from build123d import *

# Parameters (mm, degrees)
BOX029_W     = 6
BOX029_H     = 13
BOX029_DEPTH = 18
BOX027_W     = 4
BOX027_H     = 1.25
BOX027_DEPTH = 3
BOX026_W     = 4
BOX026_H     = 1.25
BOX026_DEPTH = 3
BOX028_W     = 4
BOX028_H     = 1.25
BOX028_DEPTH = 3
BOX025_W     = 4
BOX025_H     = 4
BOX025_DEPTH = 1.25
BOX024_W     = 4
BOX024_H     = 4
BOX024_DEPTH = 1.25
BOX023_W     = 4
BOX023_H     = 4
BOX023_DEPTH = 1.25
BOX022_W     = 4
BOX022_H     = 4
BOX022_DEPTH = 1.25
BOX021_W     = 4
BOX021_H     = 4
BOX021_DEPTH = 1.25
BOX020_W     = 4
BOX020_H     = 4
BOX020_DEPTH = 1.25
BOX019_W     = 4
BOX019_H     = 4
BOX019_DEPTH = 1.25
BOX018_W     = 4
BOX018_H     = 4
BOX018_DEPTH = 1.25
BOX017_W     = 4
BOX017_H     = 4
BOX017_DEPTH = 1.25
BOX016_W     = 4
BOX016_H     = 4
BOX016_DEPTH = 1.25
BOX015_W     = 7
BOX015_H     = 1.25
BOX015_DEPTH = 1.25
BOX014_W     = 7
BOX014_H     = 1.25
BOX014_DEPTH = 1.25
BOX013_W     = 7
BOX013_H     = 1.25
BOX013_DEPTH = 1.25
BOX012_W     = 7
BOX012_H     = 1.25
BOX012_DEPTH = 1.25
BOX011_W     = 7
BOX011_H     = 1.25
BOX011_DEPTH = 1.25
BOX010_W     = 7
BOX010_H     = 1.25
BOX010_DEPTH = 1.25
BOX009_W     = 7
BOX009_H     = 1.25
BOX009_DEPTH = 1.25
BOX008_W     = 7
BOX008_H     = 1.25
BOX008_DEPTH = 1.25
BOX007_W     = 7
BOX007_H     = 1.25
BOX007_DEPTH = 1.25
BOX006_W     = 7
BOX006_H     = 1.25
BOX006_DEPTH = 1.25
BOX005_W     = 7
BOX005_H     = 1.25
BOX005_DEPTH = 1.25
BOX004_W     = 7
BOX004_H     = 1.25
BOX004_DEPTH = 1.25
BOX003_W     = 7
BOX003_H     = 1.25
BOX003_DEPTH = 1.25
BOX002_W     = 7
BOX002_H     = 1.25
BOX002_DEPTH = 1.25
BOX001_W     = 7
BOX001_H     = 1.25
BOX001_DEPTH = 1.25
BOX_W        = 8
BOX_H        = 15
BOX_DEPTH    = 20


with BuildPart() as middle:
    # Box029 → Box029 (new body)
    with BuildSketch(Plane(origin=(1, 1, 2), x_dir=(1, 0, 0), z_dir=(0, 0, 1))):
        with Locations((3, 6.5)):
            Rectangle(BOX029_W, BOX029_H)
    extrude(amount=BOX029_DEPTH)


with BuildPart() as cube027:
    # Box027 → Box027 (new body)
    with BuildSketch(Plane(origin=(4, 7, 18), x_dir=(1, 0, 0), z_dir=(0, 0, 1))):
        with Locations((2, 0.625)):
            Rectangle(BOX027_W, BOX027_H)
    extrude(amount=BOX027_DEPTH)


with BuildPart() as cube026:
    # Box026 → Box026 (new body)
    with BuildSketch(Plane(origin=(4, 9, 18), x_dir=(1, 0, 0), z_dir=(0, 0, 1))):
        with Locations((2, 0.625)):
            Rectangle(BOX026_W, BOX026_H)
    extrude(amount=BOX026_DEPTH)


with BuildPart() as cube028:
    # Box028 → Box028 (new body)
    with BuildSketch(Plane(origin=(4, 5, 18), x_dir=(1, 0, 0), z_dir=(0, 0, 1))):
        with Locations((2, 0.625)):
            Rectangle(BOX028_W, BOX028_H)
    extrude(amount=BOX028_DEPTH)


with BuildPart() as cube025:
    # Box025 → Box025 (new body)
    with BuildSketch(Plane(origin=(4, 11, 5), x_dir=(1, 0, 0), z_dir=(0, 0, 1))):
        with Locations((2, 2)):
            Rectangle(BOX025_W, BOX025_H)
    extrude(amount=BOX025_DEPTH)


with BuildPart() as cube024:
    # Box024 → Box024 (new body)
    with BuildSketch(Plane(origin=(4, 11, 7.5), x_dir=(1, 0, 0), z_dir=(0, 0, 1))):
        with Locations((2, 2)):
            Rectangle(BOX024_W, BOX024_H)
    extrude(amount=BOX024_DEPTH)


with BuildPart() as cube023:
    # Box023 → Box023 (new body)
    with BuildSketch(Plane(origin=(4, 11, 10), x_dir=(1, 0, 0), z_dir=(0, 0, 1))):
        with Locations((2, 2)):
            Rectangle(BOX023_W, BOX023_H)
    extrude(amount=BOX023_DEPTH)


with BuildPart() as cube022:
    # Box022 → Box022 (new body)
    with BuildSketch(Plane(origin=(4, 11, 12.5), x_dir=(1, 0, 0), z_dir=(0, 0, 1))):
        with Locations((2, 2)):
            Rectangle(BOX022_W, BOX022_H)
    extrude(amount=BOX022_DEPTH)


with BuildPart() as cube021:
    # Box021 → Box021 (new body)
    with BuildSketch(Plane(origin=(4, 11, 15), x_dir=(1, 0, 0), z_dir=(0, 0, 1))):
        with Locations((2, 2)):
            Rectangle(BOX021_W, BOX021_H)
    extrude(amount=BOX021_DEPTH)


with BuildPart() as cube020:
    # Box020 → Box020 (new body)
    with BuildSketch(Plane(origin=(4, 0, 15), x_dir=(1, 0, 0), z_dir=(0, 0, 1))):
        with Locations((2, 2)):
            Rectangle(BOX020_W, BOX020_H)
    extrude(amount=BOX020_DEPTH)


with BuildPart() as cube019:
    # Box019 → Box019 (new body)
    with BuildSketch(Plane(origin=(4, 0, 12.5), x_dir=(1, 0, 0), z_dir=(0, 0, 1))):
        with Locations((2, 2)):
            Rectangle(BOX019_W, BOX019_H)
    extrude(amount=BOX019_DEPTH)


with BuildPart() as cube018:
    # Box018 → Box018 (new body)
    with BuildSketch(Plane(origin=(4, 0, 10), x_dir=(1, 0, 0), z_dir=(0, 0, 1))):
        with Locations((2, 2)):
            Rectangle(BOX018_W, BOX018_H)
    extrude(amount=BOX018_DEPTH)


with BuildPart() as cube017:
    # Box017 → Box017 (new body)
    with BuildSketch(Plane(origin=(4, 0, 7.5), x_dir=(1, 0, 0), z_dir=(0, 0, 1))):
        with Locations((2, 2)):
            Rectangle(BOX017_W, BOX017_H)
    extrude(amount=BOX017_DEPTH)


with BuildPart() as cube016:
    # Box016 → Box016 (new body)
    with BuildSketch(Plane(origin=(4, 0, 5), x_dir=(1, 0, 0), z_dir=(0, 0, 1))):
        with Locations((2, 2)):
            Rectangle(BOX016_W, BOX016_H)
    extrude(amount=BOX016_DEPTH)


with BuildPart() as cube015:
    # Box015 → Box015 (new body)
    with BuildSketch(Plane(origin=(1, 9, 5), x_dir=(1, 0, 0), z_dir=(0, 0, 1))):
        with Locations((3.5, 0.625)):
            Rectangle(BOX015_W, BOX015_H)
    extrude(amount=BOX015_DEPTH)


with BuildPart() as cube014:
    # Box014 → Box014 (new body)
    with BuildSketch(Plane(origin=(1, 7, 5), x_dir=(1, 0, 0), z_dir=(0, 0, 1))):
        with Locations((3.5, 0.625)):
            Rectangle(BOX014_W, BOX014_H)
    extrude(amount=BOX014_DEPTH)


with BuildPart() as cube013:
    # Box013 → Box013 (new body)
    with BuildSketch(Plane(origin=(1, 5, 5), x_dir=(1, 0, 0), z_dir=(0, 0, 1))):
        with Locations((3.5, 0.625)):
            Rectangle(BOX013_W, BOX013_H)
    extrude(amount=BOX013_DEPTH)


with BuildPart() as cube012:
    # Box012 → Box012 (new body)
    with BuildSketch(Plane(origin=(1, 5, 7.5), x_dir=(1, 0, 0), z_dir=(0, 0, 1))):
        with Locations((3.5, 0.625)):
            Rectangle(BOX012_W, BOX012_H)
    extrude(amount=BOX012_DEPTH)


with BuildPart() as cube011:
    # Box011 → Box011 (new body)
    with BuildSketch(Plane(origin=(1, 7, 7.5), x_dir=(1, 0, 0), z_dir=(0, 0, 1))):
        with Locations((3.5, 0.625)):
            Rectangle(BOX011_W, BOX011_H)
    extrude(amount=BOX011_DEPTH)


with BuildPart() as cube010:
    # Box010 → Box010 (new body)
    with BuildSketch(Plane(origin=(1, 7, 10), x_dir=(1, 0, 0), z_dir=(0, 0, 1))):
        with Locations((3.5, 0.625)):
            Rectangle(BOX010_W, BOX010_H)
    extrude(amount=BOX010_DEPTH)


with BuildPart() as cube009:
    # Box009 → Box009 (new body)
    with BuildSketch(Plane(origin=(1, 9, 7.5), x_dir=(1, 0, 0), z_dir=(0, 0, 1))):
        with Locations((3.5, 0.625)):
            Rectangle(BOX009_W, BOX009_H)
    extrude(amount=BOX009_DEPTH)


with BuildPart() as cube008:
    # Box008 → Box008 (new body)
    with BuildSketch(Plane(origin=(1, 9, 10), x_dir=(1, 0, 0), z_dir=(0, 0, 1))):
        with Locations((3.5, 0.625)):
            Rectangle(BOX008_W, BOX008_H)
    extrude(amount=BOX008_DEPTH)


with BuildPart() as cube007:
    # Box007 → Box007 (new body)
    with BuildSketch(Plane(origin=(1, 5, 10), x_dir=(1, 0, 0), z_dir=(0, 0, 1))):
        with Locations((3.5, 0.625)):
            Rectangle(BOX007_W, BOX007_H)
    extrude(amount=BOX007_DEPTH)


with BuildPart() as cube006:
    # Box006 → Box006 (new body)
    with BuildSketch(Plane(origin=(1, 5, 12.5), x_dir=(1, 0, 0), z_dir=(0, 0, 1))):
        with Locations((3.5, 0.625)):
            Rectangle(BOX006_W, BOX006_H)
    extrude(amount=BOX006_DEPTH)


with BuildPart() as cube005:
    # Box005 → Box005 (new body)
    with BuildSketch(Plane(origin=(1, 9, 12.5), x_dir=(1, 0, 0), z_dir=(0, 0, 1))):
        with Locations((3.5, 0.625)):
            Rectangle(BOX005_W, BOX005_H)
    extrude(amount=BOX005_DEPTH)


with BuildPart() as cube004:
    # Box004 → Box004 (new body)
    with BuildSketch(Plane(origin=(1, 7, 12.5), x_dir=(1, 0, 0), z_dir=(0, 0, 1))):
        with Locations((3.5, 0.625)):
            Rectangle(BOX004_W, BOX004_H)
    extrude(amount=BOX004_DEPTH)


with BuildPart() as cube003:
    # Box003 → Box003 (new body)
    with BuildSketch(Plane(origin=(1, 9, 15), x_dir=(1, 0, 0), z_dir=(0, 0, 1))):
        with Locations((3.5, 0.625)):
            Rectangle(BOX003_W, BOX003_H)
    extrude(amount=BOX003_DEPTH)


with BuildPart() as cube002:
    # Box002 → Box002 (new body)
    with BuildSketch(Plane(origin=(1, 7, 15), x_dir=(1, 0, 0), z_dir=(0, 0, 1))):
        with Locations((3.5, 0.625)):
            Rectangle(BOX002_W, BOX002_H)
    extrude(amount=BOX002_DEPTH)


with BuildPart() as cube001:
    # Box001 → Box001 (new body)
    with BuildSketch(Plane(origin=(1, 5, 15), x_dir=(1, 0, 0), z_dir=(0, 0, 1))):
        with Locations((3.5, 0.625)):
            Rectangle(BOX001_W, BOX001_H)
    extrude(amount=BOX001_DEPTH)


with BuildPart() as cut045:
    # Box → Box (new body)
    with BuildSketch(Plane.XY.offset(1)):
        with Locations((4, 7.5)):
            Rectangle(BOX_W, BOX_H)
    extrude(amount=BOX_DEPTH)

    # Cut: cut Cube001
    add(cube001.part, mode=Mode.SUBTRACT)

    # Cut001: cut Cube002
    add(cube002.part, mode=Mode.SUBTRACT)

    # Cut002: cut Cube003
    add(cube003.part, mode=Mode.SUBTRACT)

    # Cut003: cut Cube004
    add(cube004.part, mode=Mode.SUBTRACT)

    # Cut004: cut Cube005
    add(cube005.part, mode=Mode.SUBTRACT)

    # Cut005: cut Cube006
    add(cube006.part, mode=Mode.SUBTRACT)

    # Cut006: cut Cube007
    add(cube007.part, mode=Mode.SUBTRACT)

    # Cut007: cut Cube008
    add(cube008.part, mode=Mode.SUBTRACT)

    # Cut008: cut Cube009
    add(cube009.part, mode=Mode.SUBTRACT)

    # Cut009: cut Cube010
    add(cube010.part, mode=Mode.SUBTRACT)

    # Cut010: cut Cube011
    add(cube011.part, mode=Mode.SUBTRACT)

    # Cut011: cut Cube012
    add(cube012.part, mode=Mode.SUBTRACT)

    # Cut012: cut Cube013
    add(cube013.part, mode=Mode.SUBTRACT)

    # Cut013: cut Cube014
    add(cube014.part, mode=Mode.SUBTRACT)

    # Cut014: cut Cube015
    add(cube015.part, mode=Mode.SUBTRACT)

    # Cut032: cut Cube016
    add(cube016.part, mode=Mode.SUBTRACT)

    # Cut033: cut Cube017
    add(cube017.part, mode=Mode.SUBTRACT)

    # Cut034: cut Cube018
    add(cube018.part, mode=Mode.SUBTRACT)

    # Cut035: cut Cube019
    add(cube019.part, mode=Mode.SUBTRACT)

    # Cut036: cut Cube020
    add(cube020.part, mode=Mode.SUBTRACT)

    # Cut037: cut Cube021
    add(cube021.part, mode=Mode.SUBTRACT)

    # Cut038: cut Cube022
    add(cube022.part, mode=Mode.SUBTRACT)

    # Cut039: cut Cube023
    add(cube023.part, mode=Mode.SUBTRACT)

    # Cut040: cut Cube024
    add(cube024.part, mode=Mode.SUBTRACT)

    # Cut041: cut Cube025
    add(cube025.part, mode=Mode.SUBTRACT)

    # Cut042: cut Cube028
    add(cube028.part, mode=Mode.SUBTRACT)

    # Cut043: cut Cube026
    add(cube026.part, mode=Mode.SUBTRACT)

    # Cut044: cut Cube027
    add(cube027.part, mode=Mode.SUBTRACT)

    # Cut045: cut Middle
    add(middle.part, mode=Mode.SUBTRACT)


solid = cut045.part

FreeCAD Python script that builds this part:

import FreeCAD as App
import Part
import Sketcher
from FreeCAD import Vector
Q = App.Units.Quantity


def add_polygon(sketch, points):
    """Adds a closed chain of lines whose ends are joined by coincident constraints."""
    first, n = sketch.GeometryCount, len(points)
    for a, b in zip(points, points[1:] + points[:1]):
        sketch.addGeometry(Part.LineSegment(App.Vector(*a, 0), App.Vector(*b, 0)), False)
    for i in range(n):
        sketch.addConstraint(Sketcher.Constraint("Coincident", first + i, 2, first + (i + 1) % n, 1))

doc = App.newDocument("Part")
body = doc.addObject("PartDesign::Body", "Body")

# Sketch on XY plane
sketch1 = body.newObject("Sketcher::SketchObject", "Sketch")
sketch1.AttachmentSupport = (doc.getObject("XY_Plane"), [""])
sketch1.MapMode = "FlatFace"
sketch1.AttachmentOffset = App.Placement(Vector(0, 0, 2), App.Rotation())
add_polygon(sketch1, [(1, 14), (1, 1), (7, 1), (7, 14)])  # lines 0-3
sketch1.addConstraint([
    Sketcher.Constraint("Vertical", 0),
    Sketcher.Constraint("Horizontal", 1),
    Sketcher.Constraint("Vertical", 2),
    Sketcher.Constraint("Horizontal", 3),
    Sketcher.Constraint("DistanceX", 1, 1, 1, 2, Q("6 mm")),
    Sketcher.Constraint("DistanceY", 0, 2, 0, 1, Q("13 mm")),
    Sketcher.Constraint("DistanceX", -1, 1, 0, 2, Q("1 mm")),
    Sketcher.Constraint("DistanceY", -1, 1, 0, 2, Q("1 mm")),
])
pad1 = body.newObject("PartDesign::Pad", "Pad")
pad1.Profile = sketch1
pad1.Length = 18
body2 = doc.addObject("PartDesign::Body", "Body001")

# Sketch on XY plane
sketch2 = body2.newObject("Sketcher::SketchObject", "Sketch001")
sketch2.AttachmentSupport = (doc.getObject("XY_Plane001"), [""])
sketch2.MapMode = "FlatFace"
sketch2.AttachmentOffset = App.Placement(Vector(0, 0, 18), App.Rotation())
add_polygon(sketch2, [(4, 8.2), (4, 7), (8, 7), (8, 8.2)])  # lines 0-3
sketch2.addConstraint([
    Sketcher.Constraint("Vertical", 0),
    Sketcher.Constraint("Horizontal", 1),
    Sketcher.Constraint("Vertical", 2),
    Sketcher.Constraint("Horizontal", 3),
    Sketcher.Constraint("DistanceX", 1, 1, 1, 2, Q("4 mm")),
    Sketcher.Constraint("DistanceX", -1, 1, 0, 2, Q("4 mm")),
    Sketcher.Constraint("DistanceY", -1, 1, 0, 2, Q("7 mm")),
    Sketcher.Constraint("DistanceY", 0, 2, 0, 1, Q("1.25 mm")),
])
pad2 = body2.newObject("PartDesign::Pad", "Pad001")
pad2.Profile = sketch2
pad2.Length = 3
body3 = doc.addObject("PartDesign::Body", "Body002")

# Sketch on XY plane
sketch3 = body3.newObject("Sketcher::SketchObject", "Sketch002")
sketch3.AttachmentSupport = (doc.getObject("XY_Plane002"), [""])
sketch3.MapMode = "FlatFace"
sketch3.AttachmentOffset = App.Placement(Vector(0, 0, 18), App.Rotation())
add_polygon(sketch3, [(4, 10.2), (4, 9), (8, 9), (8, 10.2)])  # lines 0-3
sketch3.addConstraint([
    Sketcher.Constraint("Vertical", 0),
    Sketcher.Constraint("Horizontal", 1),
    Sketcher.Constraint("Vertical", 2),
    Sketcher.Constraint("Horizontal", 3),
    Sketcher.Constraint("DistanceX", 1, 1, 1, 2, Q("4 mm")),
    Sketcher.Constraint("DistanceX", -1, 1, 0, 2, Q("4 mm")),
    Sketcher.Constraint("DistanceY", -1, 1, 0, 2, Q("9 mm")),
    Sketcher.Constraint("DistanceY", 0, 2, 0, 1, Q("1.25 mm")),
])
pad3 = body3.newObject("PartDesign::Pad", "Pad002")
pad3.Profile = sketch3
pad3.Length = 3
body4 = doc.addObject("PartDesign::Body", "Body003")

# Sketch on XY plane
sketch4 = body4.newObject("Sketcher::SketchObject", "Sketch003")
sketch4.AttachmentSupport = (doc.getObject("XY_Plane003"), [""])
sketch4.MapMode = "FlatFace"
sketch4.AttachmentOffset = App.Placement(Vector(0, 0, 18), App.Rotation())
add_polygon(sketch4, [(4, 6.2), (4, 5), (8, 5), (8, 6.2)])  # lines 0-3
sketch4.addConstraint([
    Sketcher.Constraint("Vertical", 0),
    Sketcher.Constraint("Horizontal", 1),
    Sketcher.Constraint("Vertical", 2),
    Sketcher.Constraint("Horizontal", 3),
    Sketcher.Constraint("DistanceX", 1, 1, 1, 2, Q("4 mm")),
    Sketcher.Constraint("DistanceX", -1, 1, 0, 2, Q("4 mm")),
    Sketcher.Constraint("DistanceY", -1, 1, 0, 2, Q("5 mm")),
    Sketcher.Constraint("DistanceY", 0, 2, 0, 1, Q("1.25 mm")),
])
pad4 = body4.newObject("PartDesign::Pad", "Pad003")
pad4.Profile = sketch4
pad4.Length = 3
body5 = doc.addObject("PartDesign::Body", "Body004")

# Sketch on XY plane
sketch5 = body5.newObject("Sketcher::SketchObject", "Sketch004")
sketch5.AttachmentSupport = (doc.getObject("XY_Plane004"), [""])
sketch5.MapMode = "FlatFace"
sketch5.AttachmentOffset = App.Placement(Vector(0, 0, 5), App.Rotation())
add_polygon(sketch5, [(4, 15), (4, 11), (8, 11), (8, 15)])  # lines 0-3
sketch5.addConstraint([
    Sketcher.Constraint("Vertical", 0),
    Sketcher.Constraint("Horizontal", 1),
    Sketcher.Constraint("Vertical", 2),
    Sketcher.Constraint("Horizontal", 3),
    Sketcher.Constraint("Equal", 3, 0),
    Sketcher.Constraint("DistanceX", 1, 1, 1, 2, Q("4 mm")),
    Sketcher.Constraint("DistanceX", -1, 1, 0, 2, Q("4 mm")),
    Sketcher.Constraint("DistanceY", -1, 1, 0, 2, Q("11 mm")),
])
pad5 = body5.newObject("PartDesign::Pad", "Pad004")
pad5.Profile = sketch5
pad5.Length = 1.25
body6 = doc.addObject("PartDesign::Body", "Body005")

# Sketch on XY plane
sketch6 = body6.newObject("Sketcher::SketchObject", "Sketch005")
sketch6.AttachmentSupport = (doc.getObject("XY_Plane005"), [""])
sketch6.MapMode = "FlatFace"
sketch6.AttachmentOffset = App.Placement(Vector(0, 0, 7.5), App.Rotation())
add_polygon(sketch6, [(4, 15), (4, 11), (8, 11), (8, 15)])  # lines 0-3
sketch6.addConstraint([
    Sketcher.Constraint("Vertical", 0),
    Sketcher.Constraint("Horizontal", 1),
    Sketcher.Constraint("Vertical", 2),
    Sketcher.Constraint("Horizontal", 3),
    Sketcher.Constraint("Equal", 3, 0),
    Sketcher.Constraint("DistanceX", 1, 1, 1, 2, Q("4 mm")),
    Sketcher.Constraint("DistanceX", -1, 1, 0, 2, Q("4 mm")),
    Sketcher.Constraint("DistanceY", -1, 1, 0, 2, Q("11 mm")),
])
pad6 = body6.newObject("PartDesign::Pad", "Pad005")
pad6.Profile = sketch6
pad6.Length = 1.25
body7 = doc.addObject("PartDesign::Body", "Body006")

# Sketch on XY plane
sketch7 = body7.newObject("Sketcher::SketchObject", "Sketch006")
sketch7.AttachmentSupport = (doc.getObject("XY_Plane006"), [""])
sketch7.MapMode = "FlatFace"
sketch7.AttachmentOffset = App.Placement(Vector(0, 0, 10), App.Rotation())
add_polygon(sketch7, [(4, 15), (4, 11), (8, 11), (8, 15)])  # lines 0-3
sketch7.addConstraint([
    Sketcher.Constraint("Vertical", 0),
    Sketcher.Constraint("Horizontal", 1),
    Sketcher.Constraint("Vertical", 2),
    Sketcher.Constraint("Horizontal", 3),
    Sketcher.Constraint("Equal", 3, 0),
    Sketcher.Constraint("DistanceX", 1, 1, 1, 2, Q("4 mm")),
    Sketcher.Constraint("DistanceX", -1, 1, 0, 2, Q("4 mm")),
    Sketcher.Constraint("DistanceY", -1, 1, 0, 2, Q("11 mm")),
])
pad7 = body7.newObject("PartDesign::Pad", "Pad006")
pad7.Profile = sketch7
pad7.Length = 1.25
body8 = doc.addObject("PartDesign::Body", "Body007")

# Sketch on XY plane
sketch8 = body8.newObject("Sketcher::SketchObject", "Sketch007")
sketch8.AttachmentSupport = (doc.getObject("XY_Plane007"), [""])
sketch8.MapMode = "FlatFace"
sketch8.AttachmentOffset = App.Placement(Vector(0, 0, 12.5), App.Rotation())
add_polygon(sketch8, [(4, 15), (4, 11), (8, 11), (8, 15)])  # lines 0-3
sketch8.addConstraint([
    Sketcher.Constraint("Vertical", 0),
    Sketcher.Constraint("Horizontal", 1),
    Sketcher.Constraint("Vertical", 2),
    Sketcher.Constraint("Horizontal", 3),
    Sketcher.Constraint("Equal", 3, 0),
    Sketcher.Constraint("DistanceX", 1, 1, 1, 2, Q("4 mm")),
    Sketcher.Constraint("DistanceX", -1, 1, 0, 2, Q("4 mm")),
    Sketcher.Constraint("DistanceY", -1, 1, 0, 2, Q("11 mm")),
])
pad8 = body8.newObject("PartDesign::Pad", "Pad007")
pad8.Profile = sketch8
pad8.Length = 1.25
body9 = doc.addObject("PartDesign::Body", "Body008")

# Sketch on XY plane
sketch9 = body9.newObject("Sketcher::SketchObject", "Sketch008")
sketch9.AttachmentSupport = (doc.getObject("XY_Plane008"), [""])
sketch9.MapMode = "FlatFace"
sketch9.AttachmentOffset = App.Placement(Vector(0, 0, 15), App.Rotation())
add_polygon(sketch9, [(4, 15), (4, 11), (8, 11), (8, 15)])  # lines 0-3
sketch9.addConstraint([
    Sketcher.Constraint("Vertical", 0),
    Sketcher.Constraint("Horizontal", 1),
    Sketcher.Constraint("Vertical", 2),
    Sketcher.Constraint("Horizontal", 3),
    Sketcher.Constraint("Equal", 3, 0),
    Sketcher.Constraint("DistanceX", 1, 1, 1, 2, Q("4 mm")),
    Sketcher.Constraint("DistanceX", -1, 1, 0, 2, Q("4 mm")),
    Sketcher.Constraint("DistanceY", -1, 1, 0, 2, Q("11 mm")),
])
pad9 = body9.newObject("PartDesign::Pad", "Pad008")
pad9.Profile = sketch9
pad9.Length = 1.25
body10 = doc.addObject("PartDesign::Body", "Body009")

# Sketch on XY plane
sketch10 = body10.newObject("Sketcher::SketchObject", "Sketch009")
sketch10.AttachmentSupport = (doc.getObject("XY_Plane009"), [""])
sketch10.MapMode = "FlatFace"
sketch10.AttachmentOffset = App.Placement(Vector(0, 0, 15), App.Rotation())
add_polygon(sketch10, [(4, 4), (4, 0), (8, 0), (8, 4)])  # lines 0-3
sketch10.addConstraint([
    Sketcher.Constraint("Vertical", 0),
    Sketcher.Constraint("Horizontal", 1),
    Sketcher.Constraint("Vertical", 2),
    Sketcher.Constraint("Horizontal", 3),
    Sketcher.Constraint("PointOnObject", 0, 2, -1),
    Sketcher.Constraint("Equal", 3, 0),
    Sketcher.Constraint("DistanceX", 1, 1, 1, 2, Q("4 mm")),
    Sketcher.Constraint("DistanceX", -1, 1, 0, 2, Q("4 mm")),
])
pad10 = body10.newObject("PartDesign::Pad", "Pad009")
pad10.Profile = sketch10
pad10.Length = 1.25
body11 = doc.addObject("PartDesign::Body", "Body010")

# Sketch on XY plane
sketch11 = body11.newObject("Sketcher::SketchObject", "Sketch010")
sketch11.AttachmentSupport = (doc.getObject("XY_Plane010"), [""])
sketch11.MapMode = "FlatFace"
sketch11.AttachmentOffset = App.Placement(Vector(0, 0, 12.5), App.Rotation())
add_polygon(sketch11, [(4, 4), (4, 0), (8, 0), (8, 4)])  # lines 0-3
sketch11.addConstraint([
    Sketcher.Constraint("Vertical", 0),
    Sketcher.Constraint("Horizontal", 1),
    Sketcher.Constraint("Vertical", 2),
    Sketcher.Constraint("Horizontal", 3),
    Sketcher.Constraint("PointOnObject", 0, 2, -1),
    Sketcher.Constraint("Equal", 3, 0),
    Sketcher.Constraint("DistanceX", 1, 1, 1, 2, Q("4 mm")),
    Sketcher.Constraint("DistanceX", -1, 1, 0, 2, Q("4 mm")),
])
pad11 = body11.newObject("PartDesign::Pad", "Pad010")
pad11.Profile = sketch11
pad11.Length = 1.25
body12 = doc.addObject("PartDesign::Body", "Body011")

# Sketch on XY plane
sketch12 = body12.newObject("Sketcher::SketchObject", "Sketch011")
sketch12.AttachmentSupport = (doc.getObject("XY_Plane011"), [""])
sketch12.MapMode = "FlatFace"
sketch12.AttachmentOffset = App.Placement(Vector(0, 0, 10), App.Rotation())
add_polygon(sketch12, [(4, 4), (4, 0), (8, 0), (8, 4)])  # lines 0-3
sketch12.addConstraint([
    Sketcher.Constraint("Vertical", 0),
    Sketcher.Constraint("Horizontal", 1),
    Sketcher.Constraint("Vertical", 2),
    Sketcher.Constraint("Horizontal", 3),
    Sketcher.Constraint("PointOnObject", 0, 2, -1),
    Sketcher.Constraint("Equal", 3, 0),
    Sketcher.Constraint("DistanceX", 1, 1, 1, 2, Q("4 mm")),
    Sketcher.Constraint("DistanceX", -1, 1, 0, 2, Q("4 mm")),
])
pad12 = body12.newObject("PartDesign::Pad", "Pad011")
pad12.Profile = sketch12
pad12.Length = 1.25
body13 = doc.addObject("PartDesign::Body", "Body012")

# Sketch on XY plane
sketch13 = body13.newObject("Sketcher::SketchObject", "Sketch012")
sketch13.AttachmentSupport = (doc.getObject("XY_Plane012"), [""])
sketch13.MapMode = "FlatFace"
sketch13.AttachmentOffset = App.Placement(Vector(0, 0, 7.5), App.Rotation())
add_polygon(sketch13, [(4, 4), (4, 0), (8, 0), (8, 4)])  # lines 0-3
sketch13.addConstraint([
    Sketcher.Constraint("Vertical", 0),
    Sketcher.Constraint("Horizontal", 1),
    Sketcher.Constraint("Vertical", 2),
    Sketcher.Constraint("Horizontal", 3),
    Sketcher.Constraint("PointOnObject", 0, 2, -1),
    Sketcher.Constraint("Equal", 3, 0),
    Sketcher.Constraint("DistanceX", 1, 1, 1, 2, Q("4 mm")),
    Sketcher.Constraint("DistanceX", -1, 1, 0, 2, Q("4 mm")),
])
pad13 = body13.newObject("PartDesign::Pad", "Pad012")
pad13.Profile = sketch13
pad13.Length = 1.25
body14 = doc.addObject("PartDesign::Body", "Body013")

# Sketch on XY plane
sketch14 = body14.newObject("Sketcher::SketchObject", "Sketch013")
sketch14.AttachmentSupport = (doc.getObject("XY_Plane013"), [""])
sketch14.MapMode = "FlatFace"
sketch14.AttachmentOffset = App.Placement(Vector(0, 0, 5), App.Rotation())
add_polygon(sketch14, [(4, 4), (4, 0), (8, 0), (8, 4)])  # lines 0-3
sketch14.addConstraint([
    Sketcher.Constraint("Vertical", 0),
    Sketcher.Constraint("Horizontal", 1),
    Sketcher.Constraint("Vertical", 2),
    Sketcher.Constraint("Horizontal", 3),
    Sketcher.Constraint("PointOnObject", 0, 2, -1),
    Sketcher.Constraint("Equal", 3, 0),
    Sketcher.Constraint("DistanceX", 1, 1, 1, 2, Q("4 mm")),
    Sketcher.Constraint("DistanceX", -1, 1, 0, 2, Q("4 mm")),
])
pad14 = body14.newObject("PartDesign::Pad", "Pad013")
pad14.Profile = sketch14
pad14.Length = 1.25
body15 = doc.addObject("PartDesign::Body", "Body014")

# Sketch on XY plane
sketch15 = body15.newObject("Sketcher::SketchObject", "Sketch014")
sketch15.AttachmentSupport = (doc.getObject("XY_Plane014"), [""])
sketch15.MapMode = "FlatFace"
sketch15.AttachmentOffset = App.Placement(Vector(0, 0, 5), App.Rotation())
add_polygon(sketch15, [(1, 10.2), (1, 9), (8, 9), (8, 10.2)])  # lines 0-3
sketch15.addConstraint([
    Sketcher.Constraint("Vertical", 0),
    Sketcher.Constraint("Horizontal", 1),
    Sketcher.Constraint("Vertical", 2),
    Sketcher.Constraint("Horizontal", 3),
    Sketcher.Constraint("DistanceX", 1, 1, 1, 2, Q("7 mm")),
    Sketcher.Constraint("DistanceX", -1, 1, 0, 2, Q("1 mm")),
    Sketcher.Constraint("DistanceY", -1, 1, 0, 2, Q("9 mm")),
    Sketcher.Constraint("DistanceY", 0, 2, 0, 1, Q("1.25 mm")),
])
pad15 = body15.newObject("PartDesign::Pad", "Pad014")
pad15.Profile = sketch15
pad15.Length = 1.25
body16 = doc.addObject("PartDesign::Body", "Body015")

# Sketch on XY plane
sketch16 = body16.newObject("Sketcher::SketchObject", "Sketch015")
sketch16.AttachmentSupport = (doc.getObject("XY_Plane015"), [""])
sketch16.MapMode = "FlatFace"
sketch16.AttachmentOffset = App.Placement(Vector(0, 0, 5), App.Rotation())
add_polygon(sketch16, [(1, 8.2), (1, 7), (8, 7), (8, 8.2)])  # lines 0-3
sketch16.addConstraint([
    Sketcher.Constraint("Vertical", 0),
    Sketcher.Constraint("Horizontal", 1),
    Sketcher.Constraint("Vertical", 2),
    Sketcher.Constraint("Horizontal", 3),
    Sketcher.Constraint("DistanceX", 1, 1, 1, 2, Q("7 mm")),
    Sketcher.Constraint("DistanceX", -1, 1, 0, 2, Q("1 mm")),
    Sketcher.Constraint("DistanceY", -1, 1, 0, 2, Q("7 mm")),
    Sketcher.Constraint("DistanceY", 0, 2, 0, 1, Q("1.25 mm")),
])
pad16 = body16.newObject("PartDesign::Pad", "Pad015")
pad16.Profile = sketch16
pad16.Length = 1.25
body17 = doc.addObject("PartDesign::Body", "Body016")

# Sketch on XY plane
sketch17 = body17.newObject("Sketcher::SketchObject", "Sketch016")
sketch17.AttachmentSupport = (doc.getObject("XY_Plane016"), [""])
sketch17.MapMode = "FlatFace"
sketch17.AttachmentOffset = App.Placement(Vector(0, 0, 5), App.Rotation())
add_polygon(sketch17, [(1, 6.2), (1, 5), (8, 5), (8, 6.2)])  # lines 0-3
sketch17.addConstraint([
    Sketcher.Constraint("Vertical", 0),
    Sketcher.Constraint("Horizontal", 1),
    Sketcher.Constraint("Vertical", 2),
    Sketcher.Constraint("Horizontal", 3),
    Sketcher.Constraint("DistanceX", 1, 1, 1, 2, Q("7 mm")),
    Sketcher.Constraint("DistanceX", -1, 1, 0, 2, Q("1 mm")),
    Sketcher.Constraint("DistanceY", -1, 1, 0, 2, Q("5 mm")),
    Sketcher.Constraint("DistanceY", 0, 2, 0, 1, Q("1.25 mm")),
])
pad17 = body17.newObject("PartDesign::Pad", "Pad016")
pad17.Profile = sketch17
pad17.Length = 1.25
body18 = doc.addObject("PartDesign::Body", "Body017")

# Sketch on XY plane
sketch18 = body18.newObject("Sketcher::SketchObject", "Sketch017")
sketch18.AttachmentSupport = (doc.getObject("XY_Plane017"), [""])
sketch18.MapMode = "FlatFace"
sketch18.AttachmentOffset = App.Placement(Vector(0, 0, 7.5), App.Rotation())
add_polygon(sketch18, [(1, 6.2), (1, 5), (8, 5), (8, 6.2)])  # lines 0-3
sketch18.addConstraint([
    Sketcher.Constraint("Vertical", 0),
    Sketcher.Constraint("Horizontal", 1),
    Sketcher.Constraint("Vertical", 2),
    Sketcher.Constraint("Horizontal", 3),
    Sketcher.Constraint("DistanceX", 1, 1, 1, 2, Q("7 mm")),
    Sketcher.Constraint("DistanceX", -1, 1, 0, 2, Q("1 mm")),
    Sketcher.Constraint("DistanceY", -1, 1, 0, 2, Q("5 mm")),
    Sketcher.Constraint("DistanceY", 0, 2, 0, 1, Q("1.25 mm")),
])
pad18 = body18.newObject("PartDesign::Pad", "Pad017")
pad18.Profile = sketch18
pad18.Length = 1.25
body19 = doc.addObject("PartDesign::Body", "Body018")

# Sketch on XY plane
sketch19 = body19.newObject("Sketcher::SketchObject", "Sketch018")
sketch19.AttachmentSupport = (doc.getObject("XY_Plane018"), [""])
sketch19.MapMode = "FlatFace"
sketch19.AttachmentOffset = App.Placement(Vector(0, 0, 7.5), App.Rotation())
add_polygon(sketch19, [(1, 8.2), (1, 7), (8, 7), (8, 8.2)])  # lines 0-3
sketch19.addConstraint([
    Sketcher.Constraint("Vertical", 0),
    Sketcher.Constraint("Horizontal", 1),
    Sketcher.Constraint("Vertical", 2),
    Sketcher.Constraint("Horizontal", 3),
    Sketcher.Constraint("DistanceX", 1, 1, 1, 2, Q("7 mm")),
    Sketcher.Constraint("DistanceX", -1, 1, 0, 2, Q("1 mm")),
    Sketcher.Constraint("DistanceY", -1, 1, 0, 2, Q("7 mm")),
    Sketcher.Constraint("DistanceY", 0, 2, 0, 1, Q("1.25 mm")),
])
pad19 = body19.newObject("PartDesign::Pad", "Pad018")
pad19.Profile = sketch19
pad19.Length = 1.25
body20 = doc.addObject("PartDesign::Body", "Body019")

# Sketch on XY plane
sketch20 = body20.newObject("Sketcher::SketchObject", "Sketch019")
sketch20.AttachmentSupport = (doc.getObject("XY_Plane019"), [""])
sketch20.MapMode = "FlatFace"
sketch20.AttachmentOffset = App.Placement(Vector(0, 0, 10), App.Rotation())
add_polygon(sketch20, [(1, 8.2), (1, 7), (8, 7), (8, 8.2)])  # lines 0-3
sketch20.addConstraint([
    Sketcher.Constraint("Vertical", 0),
    Sketcher.Constraint("Horizontal", 1),
    Sketcher.Constraint("Vertical", 2),
    Sketcher.Constraint("Horizontal", 3),
    Sketcher.Constraint("DistanceX", 1, 1, 1, 2, Q("7 mm")),
    Sketcher.Constraint("DistanceX", -1, 1, 0, 2, Q("1 mm")),
    Sketcher.Constraint("DistanceY", -1, 1, 0, 2, Q("7 mm")),
    Sketcher.Constraint("DistanceY", 0, 2, 0, 1, Q("1.25 mm")),
])
pad20 = body20.newObject("PartDesign::Pad", "Pad019")
pad20.Profile = sketch20
pad20.Length = 1.25
body21 = doc.addObject("PartDesign::Body", "Body020")

# Sketch on XY plane
sketch21 = body21.newObject("Sketcher::SketchObject", "Sketch020")
sketch21.AttachmentSupport = (doc.getObject("XY_Plane020"), [""])
sketch21.MapMode = "FlatFace"
sketch21.AttachmentOffset = App.Placement(Vector(0, 0, 7.5), App.Rotation())
add_polygon(sketch21, [(1, 10.2), (1, 9), (8, 9), (8, 10.2)])  # lines 0-3
sketch21.addConstraint([
    Sketcher.Constraint("Vertical", 0),
    Sketcher.Constraint("Horizontal", 1),
    Sketcher.Constraint("Vertical", 2),
    Sketcher.Constraint("Horizontal", 3),
    Sketcher.Constraint("DistanceX", 1, 1, 1, 2, Q("7 mm")),
    Sketcher.Constraint("DistanceX", -1, 1, 0, 2, Q("1 mm")),
    Sketcher.Constraint("DistanceY", -1, 1, 0, 2, Q("9 mm")),
    Sketcher.Constraint("DistanceY", 0, 2, 0, 1, Q("1.25 mm")),
])
pad21 = body21.newObject("PartDesign::Pad", "Pad020")
pad21.Profile = sketch21
pad21.Length = 1.25
body22 = doc.addObject("PartDesign::Body", "Body021")

# Sketch on XY plane
sketch22 = body22.newObject("Sketcher::SketchObject", "Sketch021")
sketch22.AttachmentSupport = (doc.getObject("XY_Plane021"), [""])
sketch22.MapMode = "FlatFace"
sketch22.AttachmentOffset = App.Placement(Vector(0, 0, 10), App.Rotation())
add_polygon(sketch22, [(1, 10.2), (1, 9), (8, 9), (8, 10.2)])  # lines 0-3
sketch22.addConstraint([
    Sketcher.Constraint("Vertical", 0),
    Sketcher.Constraint("Horizontal", 1),
    Sketcher.Constraint("Vertical", 2),
    Sketcher.Constraint("Horizontal", 3),
    Sketcher.Constraint("DistanceX", 1, 1, 1, 2, Q("7 mm")),
    Sketcher.Constraint("DistanceX", -1, 1, 0, 2, Q("1 mm")),
    Sketcher.Constraint("DistanceY", -1, 1, 0, 2, Q("9 mm")),
    Sketcher.Constraint("DistanceY", 0, 2, 0, 1, Q("1.25 mm")),
])
pad22 = body22.newObject("PartDesign::Pad", "Pad021")
pad22.Profile = sketch22
pad22.Length = 1.25
body23 = doc.addObject("PartDesign::Body", "Body022")

# Sketch on XY plane
sketch23 = body23.newObject("Sketcher::SketchObject", "Sketch022")
sketch23.AttachmentSupport = (doc.getObject("XY_Plane022"), [""])
sketch23.MapMode = "FlatFace"
sketch23.AttachmentOffset = App.Placement(Vector(0, 0, 10), App.Rotation())
add_polygon(sketch23, [(1, 6.2), (1, 5), (8, 5), (8, 6.2)])  # lines 0-3
sketch23.addConstraint([
    Sketcher.Constraint("Vertical", 0),
    Sketcher.Constraint("Horizontal", 1),
    Sketcher.Constraint("Vertical", 2),
    Sketcher.Constraint("Horizontal", 3),
    Sketcher.Constraint("DistanceX", 1, 1, 1, 2, Q("7 mm")),
    Sketcher.Constraint("DistanceX", -1, 1, 0, 2, Q("1 mm")),
    Sketcher.Constraint("DistanceY", -1, 1, 0, 2, Q("5 mm")),
    Sketcher.Constraint("DistanceY", 0, 2, 0, 1, Q("1.25 mm")),
])
pad23 = body23.newObject("PartDesign::Pad", "Pad022")
pad23.Profile = sketch23
pad23.Length = 1.25
body24 = doc.addObject("PartDesign::Body", "Body023")

# Sketch on XY plane
sketch24 = body24.newObject("Sketcher::SketchObject", "Sketch023")
sketch24.AttachmentSupport = (doc.getObject("XY_Plane023"), [""])
sketch24.MapMode = "FlatFace"
sketch24.AttachmentOffset = App.Placement(Vector(0, 0, 12.5), App.Rotation())
add_polygon(sketch24, [(1, 6.2), (1, 5), (8, 5), (8, 6.2)])  # lines 0-3
sketch24.addConstraint([
    Sketcher.Constraint("Vertical", 0),
    Sketcher.Constraint("Horizontal", 1),
    Sketcher.Constraint("Vertical", 2),
    Sketcher.Constraint("Horizontal", 3),
    Sketcher.Constraint("DistanceX", 1, 1, 1, 2, Q("7 mm")),
    Sketcher.Constraint("DistanceX", -1, 1, 0, 2, Q("1 mm")),
    Sketcher.Constraint("DistanceY", -1, 1, 0, 2, Q("5 mm")),
    Sketcher.Constraint("DistanceY", 0, 2, 0, 1, Q("1.25 mm")),
])
pad24 = body24.newObject("PartDesign::Pad", "Pad023")
pad24.Profile = sketch24
pad24.Length = 1.25
body25 = doc.addObject("PartDesign::Body", "Body024")

# Sketch on XY plane
sketch25 = body25.newObject("Sketcher::SketchObject", "Sketch024")
sketch25.AttachmentSupport = (doc.getObject("XY_Plane024"), [""])
sketch25.MapMode = "FlatFace"
sketch25.AttachmentOffset = App.Placement(Vector(0, 0, 12.5), App.Rotation())
add_polygon(sketch25, [(1, 10.2), (1, 9), (8, 9), (8, 10.2)])  # lines 0-3
sketch25.addConstraint([
    Sketcher.Constraint("Vertical", 0),
    Sketcher.Constraint("Horizontal", 1),
    Sketcher.Constraint("Vertical", 2),
    Sketcher.Constraint("Horizontal", 3),
    Sketcher.Constraint("DistanceX", 1, 1, 1, 2, Q("7 mm")),
    Sketcher.Constraint("DistanceX", -1, 1, 0, 2, Q("1 mm")),
    Sketcher.Constraint("DistanceY", -1, 1, 0, 2, Q("9 mm")),
    Sketcher.Constraint("DistanceY", 0, 2, 0, 1, Q("1.25 mm")),
])
pad25 = body25.newObject("PartDesign::Pad", "Pad024")
pad25.Profile = sketch25
pad25.Length = 1.25
body26 = doc.addObject("PartDesign::Body", "Body025")

# Sketch on XY plane
sketch26 = body26.newObject("Sketcher::SketchObject", "Sketch025")
sketch26.AttachmentSupport = (doc.getObject("XY_Plane025"), [""])
sketch26.MapMode = "FlatFace"
sketch26.AttachmentOffset = App.Placement(Vector(0, 0, 12.5), App.Rotation())
add_polygon(sketch26, [(1, 8.2), (1, 7), (8, 7), (8, 8.2)])  # lines 0-3
sketch26.addConstraint([
    Sketcher.Constraint("Vertical", 0),
    Sketcher.Constraint("Horizontal", 1),
    Sketcher.Constraint("Vertical", 2),
    Sketcher.Constraint("Horizontal", 3),
    Sketcher.Constraint("DistanceX", 1, 1, 1, 2, Q("7 mm")),
    Sketcher.Constraint("DistanceX", -1, 1, 0, 2, Q("1 mm")),
    Sketcher.Constraint("DistanceY", -1, 1, 0, 2, Q("7 mm")),
    Sketcher.Constraint("DistanceY", 0, 2, 0, 1, Q("1.25 mm")),
])
pad26 = body26.newObject("PartDesign::Pad", "Pad025")
pad26.Profile = sketch26
pad26.Length = 1.25
body27 = doc.addObject("PartDesign::Body", "Body026")

# Sketch on XY plane
sketch27 = body27.newObject("Sketcher::SketchObject", "Sketch026")
sketch27.AttachmentSupport = (doc.getObject("XY_Plane026"), [""])
sketch27.MapMode = "FlatFace"
sketch27.AttachmentOffset = App.Placement(Vector(0, 0, 15), App.Rotation())
add_polygon(sketch27, [(1, 10.2), (1, 9), (8, 9), (8, 10.2)])  # lines 0-3
sketch27.addConstraint([
    Sketcher.Constraint("Vertical", 0),
    Sketcher.Constraint("Horizontal", 1),
    Sketcher.Constraint("Vertical", 2),
    Sketcher.Constraint("Horizontal", 3),
    Sketcher.Constraint("DistanceX", 1, 1, 1, 2, Q("7 mm")),
    Sketcher.Constraint("DistanceX", -1, 1, 0, 2, Q("1 mm")),
    Sketcher.Constraint("DistanceY", -1, 1, 0, 2, Q("9 mm")),
    Sketcher.Constraint("DistanceY", 0, 2, 0, 1, Q("1.25 mm")),
])
pad27 = body27.newObject("PartDesign::Pad", "Pad026")
pad27.Profile = sketch27
pad27.Length = 1.25
body28 = doc.addObject("PartDesign::Body", "Body027")

# Sketch on XY plane
sketch28 = body28.newObject("Sketcher::SketchObject", "Sketch027")
sketch28.AttachmentSupport = (doc.getObject("XY_Plane027"), [""])
sketch28.MapMode = "FlatFace"
sketch28.AttachmentOffset = App.Placement(Vector(0, 0, 15), App.Rotation())
add_polygon(sketch28, [(1, 8.2), (1, 7), (8, 7), (8, 8.2)])  # lines 0-3
sketch28.addConstraint([
    Sketcher.Constraint("Vertical", 0),
    Sketcher.Constraint("Horizontal", 1),
    Sketcher.Constraint("Vertical", 2),
    Sketcher.Constraint("Horizontal", 3),
    Sketcher.Constraint("DistanceX", 1, 1, 1, 2, Q("7 mm")),
    Sketcher.Constraint("DistanceX", -1, 1, 0, 2, Q("1 mm")),
    Sketcher.Constraint("DistanceY", -1, 1, 0, 2, Q("7 mm")),
    Sketcher.Constraint("DistanceY", 0, 2, 0, 1, Q("1.25 mm")),
])
pad28 = body28.newObject("PartDesign::Pad", "Pad027")
pad28.Profile = sketch28
pad28.Length = 1.25
body29 = doc.addObject("PartDesign::Body", "Body028")

# Sketch on XY plane
sketch29 = body29.newObject("Sketcher::SketchObject", "Sketch028")
sketch29.AttachmentSupport = (doc.getObject("XY_Plane028"), [""])
sketch29.MapMode = "FlatFace"
sketch29.AttachmentOffset = App.Placement(Vector(0, 0, 15), App.Rotation())
add_polygon(sketch29, [(1, 6.2), (1, 5), (8, 5), (8, 6.2)])  # lines 0-3
sketch29.addConstraint([
    Sketcher.Constraint("Vertical", 0),
    Sketcher.Constraint("Horizontal", 1),
    Sketcher.Constraint("Vertical", 2),
    Sketcher.Constraint("Horizontal", 3),
    Sketcher.Constraint("DistanceX", 1, 1, 1, 2, Q("7 mm")),
    Sketcher.Constraint("DistanceX", -1, 1, 0, 2, Q("1 mm")),
    Sketcher.Constraint("DistanceY", -1, 1, 0, 2, Q("5 mm")),
    Sketcher.Constraint("DistanceY", 0, 2, 0, 1, Q("1.25 mm")),
])
pad29 = body29.newObject("PartDesign::Pad", "Pad028")
pad29.Profile = sketch29
pad29.Length = 1.25
body30 = doc.addObject("PartDesign::Body", "Body029")

# Sketch on XY plane
sketch30 = body30.newObject("Sketcher::SketchObject", "Sketch029")
sketch30.AttachmentSupport = (doc.getObject("XY_Plane029"), [""])
sketch30.MapMode = "FlatFace"
sketch30.AttachmentOffset = App.Placement(Vector(0, 0, 1), App.Rotation())
add_polygon(sketch30, [(0, 15), (0, 0), (8, 0), (8, 15)])  # lines 0-3
sketch30.addConstraint([
    Sketcher.Constraint("Vertical", 0),
    Sketcher.Constraint("Horizontal", 1),
    Sketcher.Constraint("Vertical", 2),
    Sketcher.Constraint("Horizontal", 3),
    Sketcher.Constraint("Coincident", 0, 2, -1, 1),
    Sketcher.Constraint("DistanceX", 1, 1, 1, 2, Q("8 mm")),
    Sketcher.Constraint("DistanceY", 0, 2, 0, 1, Q("15 mm")),
])
pad30 = body30.newObject("PartDesign::Pad", "Pad029")
pad30.Profile = sketch30
pad30.Length = 20
doc.recompute()

boolean = body30.newObject("PartDesign::Boolean", "Boolean")
boolean.Type = "Cut"
boolean.addObjects([body29])
doc.recompute()

boolean2 = body30.newObject("PartDesign::Boolean", "Boolean001")
boolean2.Type = "Cut"
boolean2.addObjects([body28])
doc.recompute()

boolean3 = body30.newObject("PartDesign::Boolean", "Boolean002")
boolean3.Type = "Cut"
boolean3.addObjects([body27])
doc.recompute()

boolean4 = body30.newObject("PartDesign::Boolean", "Boolean003")
boolean4.Type = "Cut"
boolean4.addObjects([body26])
doc.recompute()

boolean5 = body30.newObject("PartDesign::Boolean", "Boolean004")
boolean5.Type = "Cut"
boolean5.addObjects([body25])
doc.recompute()

boolean6 = body30.newObject("PartDesign::Boolean", "Boolean005")
boolean6.Type = "Cut"
boolean6.addObjects([body24])
doc.recompute()

boolean7 = body30.newObject("PartDesign::Boolean", "Boolean006")
boolean7.Type = "Cut"
boolean7.addObjects([body23])
doc.recompute()

boolean8 = body30.newObject("PartDesign::Boolean", "Boolean007")
boolean8.Type = "Cut"
boolean8.addObjects([body22])
doc.recompute()

boolean9 = body30.newObject("PartDesign::Boolean", "Boolean008")
boolean9.Type = "Cut"
boolean9.addObjects([body21])
doc.recompute()

boolean10 = body30.newObject("PartDesign::Boolean", "Boolean009")
boolean10.Type = "Cut"
boolean10.addObjects([body20])
doc.recompute()

boolean11 = body30.newObject("PartDesign::Boolean", "Boolean010")
boolean11.Type = "Cut"
boolean11.addObjects([body19])
doc.recompute()

boolean12 = body30.newObject("PartDesign::Boolean", "Boolean011")
boolean12.Type = "Cut"
boolean12.addObjects([body18])
doc.recompute()

boolean13 = body30.newObject("PartDesign::Boolean", "Boolean012")
boolean13.Type = "Cut"
boolean13.addObjects([body17])
doc.recompute()

boolean14 = body30.newObject("PartDesign::Boolean", "Boolean013")
boolean14.Type = "Cut"
boolean14.addObjects([body16])
doc.recompute()

boolean15 = body30.newObject("PartDesign::Boolean", "Boolean014")
boolean15.Type = "Cut"
boolean15.addObjects([body15])
doc.recompute()

boolean16 = body30.newObject("PartDesign::Boolean", "Boolean015")
boolean16.Type = "Cut"
boolean16.addObjects([body14])
doc.recompute()

boolean17 = body30.newObject("PartDesign::Boolean", "Boolean016")
boolean17.Type = "Cut"
boolean17.addObjects([body13])
doc.recompute()

boolean18 = body30.newObject("PartDesign::Boolean", "Boolean017")
boolean18.Type = "Cut"
boolean18.addObjects([body12])
doc.recompute()

boolean19 = body30.newObject("PartDesign::Boolean", "Boolean018")
boolean19.Type = "Cut"
boolean19.addObjects([body11])
doc.recompute()

boolean20 = body30.newObject("PartDesign::Boolean", "Boolean019")
boolean20.Type = "Cut"
boolean20.addObjects([body10])
doc.recompute()

boolean21 = body30.newObject("PartDesign::Boolean", "Boolean020")
boolean21.Type = "Cut"
boolean21.addObjects([body9])
doc.recompute()

boolean22 = body30.newObject("PartDesign::Boolean", "Boolean021")
boolean22.Type = "Cut"
boolean22.addObjects([body8])
doc.recompute()

boolean23 = body30.newObject("PartDesign::Boolean", "Boolean022")
boolean23.Type = "Cut"
boolean23.addObjects([body7])
doc.recompute()

boolean24 = body30.newObject("PartDesign::Boolean", "Boolean023")
boolean24.Type = "Cut"
boolean24.addObjects([body6])
doc.recompute()

boolean25 = body30.newObject("PartDesign::Boolean", "Boolean024")
boolean25.Type = "Cut"
boolean25.addObjects([body5])
doc.recompute()

boolean26 = body30.newObject("PartDesign::Boolean", "Boolean025")
boolean26.Type = "Cut"
boolean26.addObjects([body4])
doc.recompute()

boolean27 = body30.newObject("PartDesign::Boolean", "Boolean026")
boolean27.Type = "Cut"
boolean27.addObjects([body3])
doc.recompute()

boolean28 = body30.newObject("PartDesign::Boolean", "Boolean027")
boolean28.Type = "Cut"
boolean28.addObjects([body2])
doc.recompute()

boolean29 = body30.newObject("PartDesign::Boolean", "Boolean028")
boolean29.Type = "Cut"
boolean29.addObjects([body])

doc.recompute()
